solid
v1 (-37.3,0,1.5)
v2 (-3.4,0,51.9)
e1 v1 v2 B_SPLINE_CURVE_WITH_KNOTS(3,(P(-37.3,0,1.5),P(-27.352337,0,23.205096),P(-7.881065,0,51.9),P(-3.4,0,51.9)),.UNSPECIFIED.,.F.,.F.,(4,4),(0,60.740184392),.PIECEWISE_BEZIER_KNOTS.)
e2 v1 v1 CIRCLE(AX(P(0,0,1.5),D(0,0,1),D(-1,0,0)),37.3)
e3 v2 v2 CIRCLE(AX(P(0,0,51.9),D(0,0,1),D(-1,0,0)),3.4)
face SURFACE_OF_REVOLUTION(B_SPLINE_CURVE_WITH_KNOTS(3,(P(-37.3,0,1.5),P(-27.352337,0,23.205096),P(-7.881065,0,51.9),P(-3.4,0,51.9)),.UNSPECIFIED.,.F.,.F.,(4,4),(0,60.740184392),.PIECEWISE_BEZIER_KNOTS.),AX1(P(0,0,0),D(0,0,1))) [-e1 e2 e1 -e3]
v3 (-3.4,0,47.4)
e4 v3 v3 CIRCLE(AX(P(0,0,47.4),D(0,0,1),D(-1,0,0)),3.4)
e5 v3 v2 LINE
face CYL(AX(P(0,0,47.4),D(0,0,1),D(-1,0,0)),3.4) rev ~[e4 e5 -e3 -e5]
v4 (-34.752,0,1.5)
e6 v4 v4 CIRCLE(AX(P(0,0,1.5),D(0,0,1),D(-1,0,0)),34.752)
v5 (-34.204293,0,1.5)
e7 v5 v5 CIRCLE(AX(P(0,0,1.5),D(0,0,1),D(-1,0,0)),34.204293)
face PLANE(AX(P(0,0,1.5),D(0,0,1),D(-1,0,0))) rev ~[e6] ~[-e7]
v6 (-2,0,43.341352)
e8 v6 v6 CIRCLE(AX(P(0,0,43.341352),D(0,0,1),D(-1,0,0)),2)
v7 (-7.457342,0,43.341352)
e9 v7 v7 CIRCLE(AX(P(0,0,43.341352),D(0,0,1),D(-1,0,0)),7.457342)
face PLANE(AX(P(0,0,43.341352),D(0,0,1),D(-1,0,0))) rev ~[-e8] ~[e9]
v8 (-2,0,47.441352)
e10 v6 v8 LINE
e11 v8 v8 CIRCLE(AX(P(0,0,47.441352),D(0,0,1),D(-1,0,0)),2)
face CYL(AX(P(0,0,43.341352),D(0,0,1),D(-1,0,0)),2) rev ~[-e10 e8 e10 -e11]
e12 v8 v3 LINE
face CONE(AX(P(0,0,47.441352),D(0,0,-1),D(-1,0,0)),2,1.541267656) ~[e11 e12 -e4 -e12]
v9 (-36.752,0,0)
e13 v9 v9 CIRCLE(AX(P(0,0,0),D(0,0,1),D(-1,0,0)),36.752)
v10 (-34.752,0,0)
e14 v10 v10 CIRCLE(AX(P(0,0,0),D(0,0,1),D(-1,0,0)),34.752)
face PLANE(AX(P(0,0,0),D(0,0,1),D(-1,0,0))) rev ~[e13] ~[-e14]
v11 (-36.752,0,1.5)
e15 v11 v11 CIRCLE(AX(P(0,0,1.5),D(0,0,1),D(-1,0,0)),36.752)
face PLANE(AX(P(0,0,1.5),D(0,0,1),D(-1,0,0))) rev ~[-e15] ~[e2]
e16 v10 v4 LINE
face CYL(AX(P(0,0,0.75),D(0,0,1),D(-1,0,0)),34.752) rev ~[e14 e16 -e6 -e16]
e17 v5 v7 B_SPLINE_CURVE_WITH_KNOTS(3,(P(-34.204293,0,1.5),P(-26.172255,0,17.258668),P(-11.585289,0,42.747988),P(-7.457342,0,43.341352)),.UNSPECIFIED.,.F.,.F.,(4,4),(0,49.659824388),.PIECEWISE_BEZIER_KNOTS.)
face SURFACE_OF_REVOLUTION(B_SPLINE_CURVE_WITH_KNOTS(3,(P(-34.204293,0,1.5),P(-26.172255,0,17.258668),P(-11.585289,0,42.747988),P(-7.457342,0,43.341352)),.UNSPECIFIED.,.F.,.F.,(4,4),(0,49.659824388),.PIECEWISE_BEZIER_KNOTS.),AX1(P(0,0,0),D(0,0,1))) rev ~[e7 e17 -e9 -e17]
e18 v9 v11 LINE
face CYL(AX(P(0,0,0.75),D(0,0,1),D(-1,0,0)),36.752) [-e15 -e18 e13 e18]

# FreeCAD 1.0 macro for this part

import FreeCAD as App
import Part
import Sketcher

doc = App.newDocument("Part")
body = doc.addObject("PartDesign::Body", "Body")

sketch1 = doc.addObject("Sketcher::SketchObject", "Sketch")
body.addObject(sketch1)
sketch1.AttachmentSupport = (doc.XZ_Plane, [""])
sketch1.MapMode = "FlatFace"
sketch1.addGeometry([
    Part.LineSegment(App.Vector(-3.4, 47.4, 0), App.Vector(-3.4, 51.9, 0)),
    Part.BSplineCurve([App.Vector(-37.3, 1.5, 0), App.Vector(-27.352337, 23.205096, 0), App.Vector(-7.881065, 51.9, 0), App.Vector(-3.4, 51.9, 0)], [4, 4], [0, 60.740184392], False, 3, [1, 1, 1, 1], False),
    Part.LineSegment(App.Vector(-37.3, 1.5, 0), App.Vector(-36.752, 1.5, 0)),
    Part.LineSegment(App.Vector(-36.752, 1.5, 0), App.Vector(-36.752, 0, 0)),
    Part.LineSegment(App.Vector(-36.752, 0, 0), App.Vector(-34.752, 0, 0)),
    Part.LineSegment(App.Vector(-34.752, 0, 0), App.Vector(-34.752, 1.5, 0)),
    Part.LineSegment(App.Vector(-34.752, 1.5, 0), App.Vector(-34.204293, 1.5, 0)),
    Part.BSplineCurve([App.Vector(-34.204293, 1.5, 0), App.Vector(-26.172255, 17.258668, 0), App.Vector(-11.585289, 42.747988, 0), App.Vector(-7.457342, 43.341352, 0)], [4, 4], [0, 49.659824388], False, 3, [1, 1, 1, 1], False),
    Part.LineSegment(App.Vector(-7.457342, 43.341352, 0), App.Vector(-2, 43.341352, 0)),
    Part.LineSegment(App.Vector(-2, 43.341352, 0), App.Vector(-2, 47.441352, 0)),
    Part.LineSegment(App.Vector(-2, 47.441352, 0), App.Vector(-3.4, 47.4, 0)),
], False)
sketch1.addConstraint([
    Sketcher.Constraint("Block", 1),
    Sketcher.Constraint("Block", 7),
    Sketcher.Constraint("Coincident", 0, 2, 1, 2),
    Sketcher.Constraint("Coincident", 1, 1, 2, 1),
    Sketcher.Constraint("Coincident", 2, 2, 3, 1),
    Sketcher.Constraint("Coincident", 3, 2, 4, 1),
    Sketcher.Constraint("Coincident", 4, 2, 5, 1),
    Sketcher.Constraint("Coincident", 5, 2, 6, 1),
    Sketcher.Constraint("Coincident", 6, 2, 7, 1),
    Sketcher.Constraint("Coincident", 7, 2, 8, 1),
    Sketcher.Constraint("Coincident", 8, 2, 9, 1),
    Sketcher.Constraint("Coincident", 9, 2, 10, 1),
    Sketcher.Constraint("Coincident", 10, 2, 0, 1),
    Sketcher.Constraint("Vertical", 0),
    Sketcher.Constraint("Horizontal", 2),
    Sketcher.Constraint("Vertical", 3),
    Sketcher.Constraint("Horizontal", 4),
    Sketcher.Constraint("Vertical", 5),
    Sketcher.Constraint("Horizontal", 6),
    Sketcher.Constraint("Horizontal", 8),
    Sketcher.Constraint("Vertical", 9),
    Sketcher.Constraint("PointOnObject", 3, 2, -1),
    Sketcher.Constraint("DistanceX", 4, 1, 4, 2, 2.0),
    Sketcher.Constraint("DistanceY", 0, 1, 0, 2, 4.5),
    Sketcher.Constraint("DistanceY", 9, 1, 9, 2, 4.1),
    Sketcher.Constraint("DistanceX", 8, 2, -1, 1, 2.0),
    Sketcher.Constraint("DistanceX", 2, 1, 2, 2, 0.548),
])
revolution = doc.addObject("PartDesign::Revolution", "Revolution")
body.addObject(revolution)
revolution.Profile = sketch1
revolution.ReferenceAxis = (sketch1, ["V_Axis"])
revolution.Angle = 360

doc.recompute()
